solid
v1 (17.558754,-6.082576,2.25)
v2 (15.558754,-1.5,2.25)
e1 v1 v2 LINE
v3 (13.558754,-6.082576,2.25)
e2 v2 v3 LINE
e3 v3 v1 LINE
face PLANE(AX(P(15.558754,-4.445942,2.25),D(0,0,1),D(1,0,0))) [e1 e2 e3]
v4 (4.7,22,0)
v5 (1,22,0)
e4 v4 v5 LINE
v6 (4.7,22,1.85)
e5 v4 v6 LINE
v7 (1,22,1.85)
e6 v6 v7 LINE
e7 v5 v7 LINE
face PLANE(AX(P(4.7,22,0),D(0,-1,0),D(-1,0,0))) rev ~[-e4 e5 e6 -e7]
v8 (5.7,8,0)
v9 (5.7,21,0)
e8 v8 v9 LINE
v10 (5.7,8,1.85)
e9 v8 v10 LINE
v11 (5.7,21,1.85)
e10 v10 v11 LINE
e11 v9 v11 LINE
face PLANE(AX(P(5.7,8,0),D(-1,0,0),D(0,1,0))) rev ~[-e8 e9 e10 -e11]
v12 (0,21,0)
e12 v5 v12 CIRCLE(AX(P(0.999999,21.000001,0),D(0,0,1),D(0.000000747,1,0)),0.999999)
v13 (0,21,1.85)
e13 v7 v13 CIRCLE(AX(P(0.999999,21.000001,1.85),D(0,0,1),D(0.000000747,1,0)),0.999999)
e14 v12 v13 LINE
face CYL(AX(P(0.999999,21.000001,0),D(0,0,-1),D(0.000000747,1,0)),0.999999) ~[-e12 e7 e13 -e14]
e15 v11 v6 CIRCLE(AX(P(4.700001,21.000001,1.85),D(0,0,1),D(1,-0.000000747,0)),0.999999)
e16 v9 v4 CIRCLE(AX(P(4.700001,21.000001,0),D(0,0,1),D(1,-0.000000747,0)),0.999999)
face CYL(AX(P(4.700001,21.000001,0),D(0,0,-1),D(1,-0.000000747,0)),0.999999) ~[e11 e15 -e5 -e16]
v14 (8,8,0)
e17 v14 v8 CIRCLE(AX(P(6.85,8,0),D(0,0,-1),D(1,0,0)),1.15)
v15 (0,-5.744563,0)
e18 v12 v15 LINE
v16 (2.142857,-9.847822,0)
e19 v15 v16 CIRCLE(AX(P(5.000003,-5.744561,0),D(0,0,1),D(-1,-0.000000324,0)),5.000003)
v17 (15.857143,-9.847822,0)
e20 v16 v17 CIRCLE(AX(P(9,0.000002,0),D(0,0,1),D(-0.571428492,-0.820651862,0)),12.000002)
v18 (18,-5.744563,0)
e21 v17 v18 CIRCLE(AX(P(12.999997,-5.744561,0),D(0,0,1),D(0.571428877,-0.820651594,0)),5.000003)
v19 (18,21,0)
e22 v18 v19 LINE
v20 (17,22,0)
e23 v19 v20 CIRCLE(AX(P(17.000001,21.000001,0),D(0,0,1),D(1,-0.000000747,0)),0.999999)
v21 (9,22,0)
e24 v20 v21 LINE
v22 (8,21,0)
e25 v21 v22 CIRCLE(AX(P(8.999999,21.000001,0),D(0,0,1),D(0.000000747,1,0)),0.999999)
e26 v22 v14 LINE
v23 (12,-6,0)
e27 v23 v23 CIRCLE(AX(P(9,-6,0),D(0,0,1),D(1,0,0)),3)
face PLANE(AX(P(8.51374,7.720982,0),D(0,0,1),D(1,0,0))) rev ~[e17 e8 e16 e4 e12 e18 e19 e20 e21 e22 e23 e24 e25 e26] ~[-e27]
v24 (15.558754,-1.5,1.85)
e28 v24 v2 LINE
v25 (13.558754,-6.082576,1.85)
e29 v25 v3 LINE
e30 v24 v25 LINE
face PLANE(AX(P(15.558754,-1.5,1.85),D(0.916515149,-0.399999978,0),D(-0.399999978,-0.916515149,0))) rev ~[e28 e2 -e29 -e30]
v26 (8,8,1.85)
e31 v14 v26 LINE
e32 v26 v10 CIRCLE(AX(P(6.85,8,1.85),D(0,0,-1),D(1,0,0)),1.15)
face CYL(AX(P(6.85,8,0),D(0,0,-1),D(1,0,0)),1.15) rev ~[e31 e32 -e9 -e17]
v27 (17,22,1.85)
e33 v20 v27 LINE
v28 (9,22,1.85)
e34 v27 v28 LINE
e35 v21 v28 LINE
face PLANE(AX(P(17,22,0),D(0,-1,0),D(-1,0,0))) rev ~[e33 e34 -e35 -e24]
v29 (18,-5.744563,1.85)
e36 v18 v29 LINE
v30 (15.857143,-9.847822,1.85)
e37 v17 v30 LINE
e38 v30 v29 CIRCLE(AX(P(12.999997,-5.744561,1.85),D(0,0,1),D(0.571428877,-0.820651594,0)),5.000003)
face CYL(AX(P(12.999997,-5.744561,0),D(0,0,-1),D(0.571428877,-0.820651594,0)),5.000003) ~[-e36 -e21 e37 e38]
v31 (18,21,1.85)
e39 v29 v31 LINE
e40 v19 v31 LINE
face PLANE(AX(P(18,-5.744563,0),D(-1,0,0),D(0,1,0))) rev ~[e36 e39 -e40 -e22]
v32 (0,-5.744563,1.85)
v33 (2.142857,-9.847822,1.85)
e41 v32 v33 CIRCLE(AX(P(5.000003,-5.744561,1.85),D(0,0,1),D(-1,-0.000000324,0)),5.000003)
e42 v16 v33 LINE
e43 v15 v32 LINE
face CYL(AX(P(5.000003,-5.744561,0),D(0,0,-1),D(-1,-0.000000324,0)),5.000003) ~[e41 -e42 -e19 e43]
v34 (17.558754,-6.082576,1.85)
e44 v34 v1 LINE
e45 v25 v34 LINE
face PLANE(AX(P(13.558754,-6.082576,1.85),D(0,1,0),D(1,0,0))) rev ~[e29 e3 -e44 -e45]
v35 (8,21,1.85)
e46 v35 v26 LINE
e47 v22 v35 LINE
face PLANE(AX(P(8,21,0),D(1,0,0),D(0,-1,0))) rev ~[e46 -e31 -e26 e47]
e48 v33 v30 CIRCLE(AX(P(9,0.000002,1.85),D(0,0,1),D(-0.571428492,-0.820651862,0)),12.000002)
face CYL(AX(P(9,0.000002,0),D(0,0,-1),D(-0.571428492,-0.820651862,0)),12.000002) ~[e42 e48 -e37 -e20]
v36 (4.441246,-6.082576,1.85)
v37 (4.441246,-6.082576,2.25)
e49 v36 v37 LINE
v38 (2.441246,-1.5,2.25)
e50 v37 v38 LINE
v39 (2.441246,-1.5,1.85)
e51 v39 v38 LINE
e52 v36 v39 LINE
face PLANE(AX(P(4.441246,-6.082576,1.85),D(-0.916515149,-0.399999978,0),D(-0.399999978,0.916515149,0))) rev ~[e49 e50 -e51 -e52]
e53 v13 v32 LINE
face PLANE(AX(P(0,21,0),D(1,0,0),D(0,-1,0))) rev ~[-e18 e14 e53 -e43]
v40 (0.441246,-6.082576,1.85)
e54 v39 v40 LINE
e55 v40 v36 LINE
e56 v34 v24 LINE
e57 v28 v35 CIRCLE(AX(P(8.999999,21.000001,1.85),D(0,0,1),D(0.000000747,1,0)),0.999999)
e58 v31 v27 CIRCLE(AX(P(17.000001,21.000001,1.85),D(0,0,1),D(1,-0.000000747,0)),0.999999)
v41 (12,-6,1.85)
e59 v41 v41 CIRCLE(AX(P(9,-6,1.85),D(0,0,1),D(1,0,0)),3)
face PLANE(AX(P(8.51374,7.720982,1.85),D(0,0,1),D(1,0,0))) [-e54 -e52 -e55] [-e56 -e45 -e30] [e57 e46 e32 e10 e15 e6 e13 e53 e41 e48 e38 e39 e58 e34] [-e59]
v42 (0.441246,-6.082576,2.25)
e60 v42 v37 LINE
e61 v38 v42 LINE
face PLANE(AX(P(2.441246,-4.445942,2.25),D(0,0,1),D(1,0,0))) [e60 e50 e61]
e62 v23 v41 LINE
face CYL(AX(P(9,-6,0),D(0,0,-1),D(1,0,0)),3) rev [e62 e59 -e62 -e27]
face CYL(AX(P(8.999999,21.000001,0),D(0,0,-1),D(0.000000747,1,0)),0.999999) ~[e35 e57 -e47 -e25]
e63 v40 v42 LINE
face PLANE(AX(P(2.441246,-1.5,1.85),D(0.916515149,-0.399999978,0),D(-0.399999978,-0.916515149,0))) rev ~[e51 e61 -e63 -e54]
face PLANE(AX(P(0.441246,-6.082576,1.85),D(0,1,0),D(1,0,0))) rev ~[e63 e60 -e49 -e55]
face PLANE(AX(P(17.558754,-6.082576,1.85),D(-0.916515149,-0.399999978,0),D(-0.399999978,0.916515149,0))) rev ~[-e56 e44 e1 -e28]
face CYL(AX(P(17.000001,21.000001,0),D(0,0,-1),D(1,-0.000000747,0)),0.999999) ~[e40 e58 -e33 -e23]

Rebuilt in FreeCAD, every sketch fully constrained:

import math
import FreeCAD as App
import Part
import Sketcher

V = App.Vector


def add_polygon(sketch, points):
    """Adds a closed chain of lines whose ends are joined by coincident constraints."""
    first, n = sketch.GeometryCount, len(points)
    for a, b in zip(points, points[1:] + points[:1]):
        sketch.addGeometry(Part.LineSegment(App.Vector(*a, 0), App.Vector(*b, 0)), False)
    for i in range(n):
        sketch.addConstraint(Sketcher.Constraint("Coincident", first + i, 2, first + (i + 1) % n, 1))

doc = App.newDocument("Part")
params = doc.addObject("Spreadsheet::Sheet", "Params")
for row, (alias, value) in enumerate([
    ("sketch1_diameter", "6 mm"),
    ("sketch1_radius", "0.999999 mm"),
    ("sketch1_radius2", "12.000002 mm"),
    ("sketch1_width", "8 mm"),
    ("sketch1_height", "13 mm"),
    ("pad1_length", "1.85 mm"),
    ("sketch2_width", "4 mm"),
    ("sketch2_length", "5 mm"),
    ("pad2_length", "0.4 mm"),
], start=1):
    params.set(f"A{row}", alias)
    params.set(f"B{row}", "=" + value)
    params.setAlias(f"B{row}", alias)

body = doc.addObject("PartDesign::Body", "Body")

# Sketch on XY plane
sketch1 = body.newObject("Sketcher::SketchObject", "Sketch")
sketch1.AttachmentSupport = (doc.getObject("XY_Plane"), [""])
sketch1.MapMode = "FlatFace"
sketch1.addGeometry(Part.LineSegment(V(4.7, 22, 0), V(1, 22, 0)), False)
sketch1.addGeometry(Part.ArcOfCircle(Part.Circle(V(1, 21, 0), V(0, 0, 1), 1), math.radians(90), math.radians(180)), False)
sketch1.addGeometry(Part.LineSegment(V(0, 21, 0), V(0, -5.7, 0)), False)
sketch1.addGeometry(Part.ArcOfCircle(Part.Circle(V(5, -5.7, 0), V(0, 0, 1), 5), math.radians(-180), math.radians(-125)), False)
sketch1.addGeometry(Part.ArcOfCircle(Part.Circle(V(9, 0, 0), V(0, 0, 1), 12), math.radians(-125), math.radians(-55)), False)
sketch1.addGeometry(Part.ArcOfCircle(Part.Circle(V(13, -5.7, 0), V(0, 0, 1), 5), math.radians(-55), math.radians(0)), False)
sketch1.addGeometry(Part.LineSegment(V(18, -5.7, 0), V(18, 21, 0)), False)
sketch1.addGeometry(Part.ArcOfCircle(Part.Circle(V(17, 21, 0), V(0, 0, 1), 1), math.radians(0), math.radians(90)), False)
sketch1.addGeometry(Part.LineSegment(V(17, 22, 0), V(9, 22, 0)), False)
sketch1.addGeometry(Part.ArcOfCircle(Part.Circle(V(9, 21, 0), V(0, 0, 1), 1), math.radians(90), math.radians(180)), False)
sketch1.addGeometry(Part.LineSegment(V(8, 21, 0), V(8, 8, 0)), False)
sketch1.addGeometry(Part.ArcOfCircle(Part.Circle(V(6.8, 8, 0), V(0, 0, 1), 1.1), math.radians(180), math.radians(360)), False)
sketch1.addGeometry(Part.LineSegment(V(5.7, 8, 0), V(5.7, 21, 0)), False)
sketch1.addGeometry(Part.ArcOfCircle(Part.Circle(V(4.7, 21, 0), V(0, 0, 1), 1), math.radians(0), math.radians(90)), False)
sketch1.addGeometry(Part.Circle(V(9, -6, 0), V(0, 0, 1), 3), False)
sketch1.addConstraint(Sketcher.Constraint("Tangent", 0, 2, 1, 1))
sketch1.addConstraint(Sketcher.Constraint("Tangent", 1, 2, 2, 1))
sketch1.addConstraint(Sketcher.Constraint("Tangent", 2, 2, 3, 1))
sketch1.addConstraint(Sketcher.Constraint("Tangent", 3, 2, 4, 1))
sketch1.addConstraint(Sketcher.Constraint("Tangent", 4, 2, 5, 1))
sketch1.addConstraint(Sketcher.Constraint("Tangent", 5, 2, 6, 1))
sketch1.addConstraint(Sketcher.Constraint("Tangent", 6, 2, 7, 1))
sketch1.addConstraint(Sketcher.Constraint("Tangent", 7, 2, 8, 1))
sketch1.addConstraint(Sketcher.Constraint("Tangent", 8, 2, 9, 1))
sketch1.addConstraint(Sketcher.Constraint("Tangent", 9, 2, 10, 1))
sketch1.addConstraint(Sketcher.Constraint("Tangent", 10, 2, 11, 2))
sketch1.addConstraint(Sketcher.Constraint("Tangent", 11, 1, 12, 1))
sketch1.addConstraint(Sketcher.Constraint("Tangent", 12, 2, 13, 1))
sketch1.addConstraint(Sketcher.Constraint("Tangent", 13, 2, 0, 1))
sketch1.addConstraint(Sketcher.Constraint("Horizontal", 0))
sketch1.addConstraint(Sketcher.Constraint("Vertical", 2))
sketch1.addConstraint(Sketcher.Constraint("Vertical", 6))
sketch1.addConstraint(Sketcher.Constraint("Horizontal", 8))
sketch1.addConstraint(Sketcher.Constraint("Vertical", 10))
sketch1.addConstraint(Sketcher.Constraint("Vertical", 12))
sketch1.addConstraint(Sketcher.Constraint("Equal", 3, 5))
sketch1.addConstraint(Sketcher.Constraint("Equal", 1, 7))
sketch1.addConstraint(Sketcher.Constraint("Equal", 7, 9))
sketch1.addConstraint(Sketcher.Constraint("Equal", 9, 13))
sketch1.addConstraint(Sketcher.Constraint("PointOnObject", 4, 3, -1))
sketch1.addConstraint(Sketcher.Constraint("PointOnObject", 1, 2, -2))
sketch1.addConstraint(Sketcher.Constraint("Horizontal", 3, 3, 5, 3))
sketch1.addConstraint(Sketcher.Constraint("Horizontal", 1, 3, 7, 3))
sketch1.addConstraint(Sketcher.Constraint("Vertical", 4, 3, 9, 3))
sketch1.addConstraint(Sketcher.Constraint("Vertical", 9, 3, 14, 3))
sketch1.addConstraint(Sketcher.Constraint("Diameter", 14, 6.0))
sketch1.addConstraint(Sketcher.Constraint("Radius", 1, 0.999999))
sketch1.addConstraint(Sketcher.Constraint("Radius", 4, 12.000002))
sketch1.addConstraint(Sketcher.Constraint("DistanceX", 8, 2, 8, 1, 8.0))
sketch1.addConstraint(Sketcher.Constraint("DistanceY", 10, 2, 10, 1, 13.0))
sketch1.addConstraint(Sketcher.Constraint("Radius", 11, 1.15))
sketch1.addConstraint(Sketcher.Constraint("DistanceY", -1, 1, 1, 3, 21.000001))
sketch1.addConstraint(Sketcher.Constraint("DistanceY", 14, 3, -1, 1, 6.0))
sketch1.addConstraint(Sketcher.Constraint("Radius", 3, 5.000003))
sketch1.setExpression("Constraints[30]", "Params.sketch1_diameter")
sketch1.setExpression("Constraints[31]", "Params.sketch1_radius")
sketch1.setExpression("Constraints[32]", "Params.sketch1_radius2")
sketch1.setExpression("Constraints[33]", "Params.sketch1_width")
sketch1.setExpression("Constraints[34]", "Params.sketch1_height")
pad1 = body.newObject("PartDesign::Pad", "Pad")
pad1.Profile = sketch1
pad1.setExpression("Length", "Params.pad1_length")

# Sketch on XY plane
sketch2 = body.newObject("Sketcher::SketchObject", "Sketch001")
sketch2.AttachmentSupport = (doc.getObject("XY_Plane"), [""])
sketch2.MapMode = "FlatFace"
sketch2.AttachmentOffset = App.Placement(V(0, 0, 1.85), App.Rotation())
add_polygon(sketch2, [(2.4, -1.5), (0.4, -6.1), (4.4, -6.1)])  # lines 0-2
add_polygon(sketch2, [(15.6, -1.5), (13.6, -6.1), (17.6, -6.1)])  # lines 3-5
sketch2.addConstraint(Sketcher.Constraint("Horizontal", 1))
sketch2.addConstraint(Sketcher.Constraint("Horizontal", 4))
sketch2.addConstraint(Sketcher.Constraint("Parallel", 0, 3))
sketch2.addConstraint(Sketcher.Constraint("Parallel", 2, 5))
sketch2.addConstraint(Sketcher.Constraint("Horizontal", 1, 2, 3, 2))
sketch2.addConstraint(Sketcher.Constraint("Horizontal", 2, 2, 5, 2))
sketch2.addConstraint(Sketcher.Constraint("Equal", 0, 2))
sketch2.addConstraint(Sketcher.Constraint("DistanceX", 1, 1, 1, 2, 4.0))
sketch2.addConstraint(Sketcher.Constraint("Distance", 0, 5.0))
sketch2.addConstraint(Sketcher.Constraint("DistanceY", 2, 2, -1, 1, 1.5))
sketch2.addConstraint(Sketcher.Constraint("DistanceX", 1, 2, 3, 2, 9.117508))
sketch2.addConstraint(Sketcher.Constraint("DistanceX", -1, 1, 0, 2, 0.441246))
sketch2.setExpression("Constraints[13]", "Params.sketch2_width")
sketch2.setExpression("Constraints[14]", "Params.sketch2_length")
pad2 = body.newObject("PartDesign::Pad", "Pad001")
pad2.Profile = sketch2
pad2.setExpression("Length", "Params.pad2_length")

doc.recompute()
